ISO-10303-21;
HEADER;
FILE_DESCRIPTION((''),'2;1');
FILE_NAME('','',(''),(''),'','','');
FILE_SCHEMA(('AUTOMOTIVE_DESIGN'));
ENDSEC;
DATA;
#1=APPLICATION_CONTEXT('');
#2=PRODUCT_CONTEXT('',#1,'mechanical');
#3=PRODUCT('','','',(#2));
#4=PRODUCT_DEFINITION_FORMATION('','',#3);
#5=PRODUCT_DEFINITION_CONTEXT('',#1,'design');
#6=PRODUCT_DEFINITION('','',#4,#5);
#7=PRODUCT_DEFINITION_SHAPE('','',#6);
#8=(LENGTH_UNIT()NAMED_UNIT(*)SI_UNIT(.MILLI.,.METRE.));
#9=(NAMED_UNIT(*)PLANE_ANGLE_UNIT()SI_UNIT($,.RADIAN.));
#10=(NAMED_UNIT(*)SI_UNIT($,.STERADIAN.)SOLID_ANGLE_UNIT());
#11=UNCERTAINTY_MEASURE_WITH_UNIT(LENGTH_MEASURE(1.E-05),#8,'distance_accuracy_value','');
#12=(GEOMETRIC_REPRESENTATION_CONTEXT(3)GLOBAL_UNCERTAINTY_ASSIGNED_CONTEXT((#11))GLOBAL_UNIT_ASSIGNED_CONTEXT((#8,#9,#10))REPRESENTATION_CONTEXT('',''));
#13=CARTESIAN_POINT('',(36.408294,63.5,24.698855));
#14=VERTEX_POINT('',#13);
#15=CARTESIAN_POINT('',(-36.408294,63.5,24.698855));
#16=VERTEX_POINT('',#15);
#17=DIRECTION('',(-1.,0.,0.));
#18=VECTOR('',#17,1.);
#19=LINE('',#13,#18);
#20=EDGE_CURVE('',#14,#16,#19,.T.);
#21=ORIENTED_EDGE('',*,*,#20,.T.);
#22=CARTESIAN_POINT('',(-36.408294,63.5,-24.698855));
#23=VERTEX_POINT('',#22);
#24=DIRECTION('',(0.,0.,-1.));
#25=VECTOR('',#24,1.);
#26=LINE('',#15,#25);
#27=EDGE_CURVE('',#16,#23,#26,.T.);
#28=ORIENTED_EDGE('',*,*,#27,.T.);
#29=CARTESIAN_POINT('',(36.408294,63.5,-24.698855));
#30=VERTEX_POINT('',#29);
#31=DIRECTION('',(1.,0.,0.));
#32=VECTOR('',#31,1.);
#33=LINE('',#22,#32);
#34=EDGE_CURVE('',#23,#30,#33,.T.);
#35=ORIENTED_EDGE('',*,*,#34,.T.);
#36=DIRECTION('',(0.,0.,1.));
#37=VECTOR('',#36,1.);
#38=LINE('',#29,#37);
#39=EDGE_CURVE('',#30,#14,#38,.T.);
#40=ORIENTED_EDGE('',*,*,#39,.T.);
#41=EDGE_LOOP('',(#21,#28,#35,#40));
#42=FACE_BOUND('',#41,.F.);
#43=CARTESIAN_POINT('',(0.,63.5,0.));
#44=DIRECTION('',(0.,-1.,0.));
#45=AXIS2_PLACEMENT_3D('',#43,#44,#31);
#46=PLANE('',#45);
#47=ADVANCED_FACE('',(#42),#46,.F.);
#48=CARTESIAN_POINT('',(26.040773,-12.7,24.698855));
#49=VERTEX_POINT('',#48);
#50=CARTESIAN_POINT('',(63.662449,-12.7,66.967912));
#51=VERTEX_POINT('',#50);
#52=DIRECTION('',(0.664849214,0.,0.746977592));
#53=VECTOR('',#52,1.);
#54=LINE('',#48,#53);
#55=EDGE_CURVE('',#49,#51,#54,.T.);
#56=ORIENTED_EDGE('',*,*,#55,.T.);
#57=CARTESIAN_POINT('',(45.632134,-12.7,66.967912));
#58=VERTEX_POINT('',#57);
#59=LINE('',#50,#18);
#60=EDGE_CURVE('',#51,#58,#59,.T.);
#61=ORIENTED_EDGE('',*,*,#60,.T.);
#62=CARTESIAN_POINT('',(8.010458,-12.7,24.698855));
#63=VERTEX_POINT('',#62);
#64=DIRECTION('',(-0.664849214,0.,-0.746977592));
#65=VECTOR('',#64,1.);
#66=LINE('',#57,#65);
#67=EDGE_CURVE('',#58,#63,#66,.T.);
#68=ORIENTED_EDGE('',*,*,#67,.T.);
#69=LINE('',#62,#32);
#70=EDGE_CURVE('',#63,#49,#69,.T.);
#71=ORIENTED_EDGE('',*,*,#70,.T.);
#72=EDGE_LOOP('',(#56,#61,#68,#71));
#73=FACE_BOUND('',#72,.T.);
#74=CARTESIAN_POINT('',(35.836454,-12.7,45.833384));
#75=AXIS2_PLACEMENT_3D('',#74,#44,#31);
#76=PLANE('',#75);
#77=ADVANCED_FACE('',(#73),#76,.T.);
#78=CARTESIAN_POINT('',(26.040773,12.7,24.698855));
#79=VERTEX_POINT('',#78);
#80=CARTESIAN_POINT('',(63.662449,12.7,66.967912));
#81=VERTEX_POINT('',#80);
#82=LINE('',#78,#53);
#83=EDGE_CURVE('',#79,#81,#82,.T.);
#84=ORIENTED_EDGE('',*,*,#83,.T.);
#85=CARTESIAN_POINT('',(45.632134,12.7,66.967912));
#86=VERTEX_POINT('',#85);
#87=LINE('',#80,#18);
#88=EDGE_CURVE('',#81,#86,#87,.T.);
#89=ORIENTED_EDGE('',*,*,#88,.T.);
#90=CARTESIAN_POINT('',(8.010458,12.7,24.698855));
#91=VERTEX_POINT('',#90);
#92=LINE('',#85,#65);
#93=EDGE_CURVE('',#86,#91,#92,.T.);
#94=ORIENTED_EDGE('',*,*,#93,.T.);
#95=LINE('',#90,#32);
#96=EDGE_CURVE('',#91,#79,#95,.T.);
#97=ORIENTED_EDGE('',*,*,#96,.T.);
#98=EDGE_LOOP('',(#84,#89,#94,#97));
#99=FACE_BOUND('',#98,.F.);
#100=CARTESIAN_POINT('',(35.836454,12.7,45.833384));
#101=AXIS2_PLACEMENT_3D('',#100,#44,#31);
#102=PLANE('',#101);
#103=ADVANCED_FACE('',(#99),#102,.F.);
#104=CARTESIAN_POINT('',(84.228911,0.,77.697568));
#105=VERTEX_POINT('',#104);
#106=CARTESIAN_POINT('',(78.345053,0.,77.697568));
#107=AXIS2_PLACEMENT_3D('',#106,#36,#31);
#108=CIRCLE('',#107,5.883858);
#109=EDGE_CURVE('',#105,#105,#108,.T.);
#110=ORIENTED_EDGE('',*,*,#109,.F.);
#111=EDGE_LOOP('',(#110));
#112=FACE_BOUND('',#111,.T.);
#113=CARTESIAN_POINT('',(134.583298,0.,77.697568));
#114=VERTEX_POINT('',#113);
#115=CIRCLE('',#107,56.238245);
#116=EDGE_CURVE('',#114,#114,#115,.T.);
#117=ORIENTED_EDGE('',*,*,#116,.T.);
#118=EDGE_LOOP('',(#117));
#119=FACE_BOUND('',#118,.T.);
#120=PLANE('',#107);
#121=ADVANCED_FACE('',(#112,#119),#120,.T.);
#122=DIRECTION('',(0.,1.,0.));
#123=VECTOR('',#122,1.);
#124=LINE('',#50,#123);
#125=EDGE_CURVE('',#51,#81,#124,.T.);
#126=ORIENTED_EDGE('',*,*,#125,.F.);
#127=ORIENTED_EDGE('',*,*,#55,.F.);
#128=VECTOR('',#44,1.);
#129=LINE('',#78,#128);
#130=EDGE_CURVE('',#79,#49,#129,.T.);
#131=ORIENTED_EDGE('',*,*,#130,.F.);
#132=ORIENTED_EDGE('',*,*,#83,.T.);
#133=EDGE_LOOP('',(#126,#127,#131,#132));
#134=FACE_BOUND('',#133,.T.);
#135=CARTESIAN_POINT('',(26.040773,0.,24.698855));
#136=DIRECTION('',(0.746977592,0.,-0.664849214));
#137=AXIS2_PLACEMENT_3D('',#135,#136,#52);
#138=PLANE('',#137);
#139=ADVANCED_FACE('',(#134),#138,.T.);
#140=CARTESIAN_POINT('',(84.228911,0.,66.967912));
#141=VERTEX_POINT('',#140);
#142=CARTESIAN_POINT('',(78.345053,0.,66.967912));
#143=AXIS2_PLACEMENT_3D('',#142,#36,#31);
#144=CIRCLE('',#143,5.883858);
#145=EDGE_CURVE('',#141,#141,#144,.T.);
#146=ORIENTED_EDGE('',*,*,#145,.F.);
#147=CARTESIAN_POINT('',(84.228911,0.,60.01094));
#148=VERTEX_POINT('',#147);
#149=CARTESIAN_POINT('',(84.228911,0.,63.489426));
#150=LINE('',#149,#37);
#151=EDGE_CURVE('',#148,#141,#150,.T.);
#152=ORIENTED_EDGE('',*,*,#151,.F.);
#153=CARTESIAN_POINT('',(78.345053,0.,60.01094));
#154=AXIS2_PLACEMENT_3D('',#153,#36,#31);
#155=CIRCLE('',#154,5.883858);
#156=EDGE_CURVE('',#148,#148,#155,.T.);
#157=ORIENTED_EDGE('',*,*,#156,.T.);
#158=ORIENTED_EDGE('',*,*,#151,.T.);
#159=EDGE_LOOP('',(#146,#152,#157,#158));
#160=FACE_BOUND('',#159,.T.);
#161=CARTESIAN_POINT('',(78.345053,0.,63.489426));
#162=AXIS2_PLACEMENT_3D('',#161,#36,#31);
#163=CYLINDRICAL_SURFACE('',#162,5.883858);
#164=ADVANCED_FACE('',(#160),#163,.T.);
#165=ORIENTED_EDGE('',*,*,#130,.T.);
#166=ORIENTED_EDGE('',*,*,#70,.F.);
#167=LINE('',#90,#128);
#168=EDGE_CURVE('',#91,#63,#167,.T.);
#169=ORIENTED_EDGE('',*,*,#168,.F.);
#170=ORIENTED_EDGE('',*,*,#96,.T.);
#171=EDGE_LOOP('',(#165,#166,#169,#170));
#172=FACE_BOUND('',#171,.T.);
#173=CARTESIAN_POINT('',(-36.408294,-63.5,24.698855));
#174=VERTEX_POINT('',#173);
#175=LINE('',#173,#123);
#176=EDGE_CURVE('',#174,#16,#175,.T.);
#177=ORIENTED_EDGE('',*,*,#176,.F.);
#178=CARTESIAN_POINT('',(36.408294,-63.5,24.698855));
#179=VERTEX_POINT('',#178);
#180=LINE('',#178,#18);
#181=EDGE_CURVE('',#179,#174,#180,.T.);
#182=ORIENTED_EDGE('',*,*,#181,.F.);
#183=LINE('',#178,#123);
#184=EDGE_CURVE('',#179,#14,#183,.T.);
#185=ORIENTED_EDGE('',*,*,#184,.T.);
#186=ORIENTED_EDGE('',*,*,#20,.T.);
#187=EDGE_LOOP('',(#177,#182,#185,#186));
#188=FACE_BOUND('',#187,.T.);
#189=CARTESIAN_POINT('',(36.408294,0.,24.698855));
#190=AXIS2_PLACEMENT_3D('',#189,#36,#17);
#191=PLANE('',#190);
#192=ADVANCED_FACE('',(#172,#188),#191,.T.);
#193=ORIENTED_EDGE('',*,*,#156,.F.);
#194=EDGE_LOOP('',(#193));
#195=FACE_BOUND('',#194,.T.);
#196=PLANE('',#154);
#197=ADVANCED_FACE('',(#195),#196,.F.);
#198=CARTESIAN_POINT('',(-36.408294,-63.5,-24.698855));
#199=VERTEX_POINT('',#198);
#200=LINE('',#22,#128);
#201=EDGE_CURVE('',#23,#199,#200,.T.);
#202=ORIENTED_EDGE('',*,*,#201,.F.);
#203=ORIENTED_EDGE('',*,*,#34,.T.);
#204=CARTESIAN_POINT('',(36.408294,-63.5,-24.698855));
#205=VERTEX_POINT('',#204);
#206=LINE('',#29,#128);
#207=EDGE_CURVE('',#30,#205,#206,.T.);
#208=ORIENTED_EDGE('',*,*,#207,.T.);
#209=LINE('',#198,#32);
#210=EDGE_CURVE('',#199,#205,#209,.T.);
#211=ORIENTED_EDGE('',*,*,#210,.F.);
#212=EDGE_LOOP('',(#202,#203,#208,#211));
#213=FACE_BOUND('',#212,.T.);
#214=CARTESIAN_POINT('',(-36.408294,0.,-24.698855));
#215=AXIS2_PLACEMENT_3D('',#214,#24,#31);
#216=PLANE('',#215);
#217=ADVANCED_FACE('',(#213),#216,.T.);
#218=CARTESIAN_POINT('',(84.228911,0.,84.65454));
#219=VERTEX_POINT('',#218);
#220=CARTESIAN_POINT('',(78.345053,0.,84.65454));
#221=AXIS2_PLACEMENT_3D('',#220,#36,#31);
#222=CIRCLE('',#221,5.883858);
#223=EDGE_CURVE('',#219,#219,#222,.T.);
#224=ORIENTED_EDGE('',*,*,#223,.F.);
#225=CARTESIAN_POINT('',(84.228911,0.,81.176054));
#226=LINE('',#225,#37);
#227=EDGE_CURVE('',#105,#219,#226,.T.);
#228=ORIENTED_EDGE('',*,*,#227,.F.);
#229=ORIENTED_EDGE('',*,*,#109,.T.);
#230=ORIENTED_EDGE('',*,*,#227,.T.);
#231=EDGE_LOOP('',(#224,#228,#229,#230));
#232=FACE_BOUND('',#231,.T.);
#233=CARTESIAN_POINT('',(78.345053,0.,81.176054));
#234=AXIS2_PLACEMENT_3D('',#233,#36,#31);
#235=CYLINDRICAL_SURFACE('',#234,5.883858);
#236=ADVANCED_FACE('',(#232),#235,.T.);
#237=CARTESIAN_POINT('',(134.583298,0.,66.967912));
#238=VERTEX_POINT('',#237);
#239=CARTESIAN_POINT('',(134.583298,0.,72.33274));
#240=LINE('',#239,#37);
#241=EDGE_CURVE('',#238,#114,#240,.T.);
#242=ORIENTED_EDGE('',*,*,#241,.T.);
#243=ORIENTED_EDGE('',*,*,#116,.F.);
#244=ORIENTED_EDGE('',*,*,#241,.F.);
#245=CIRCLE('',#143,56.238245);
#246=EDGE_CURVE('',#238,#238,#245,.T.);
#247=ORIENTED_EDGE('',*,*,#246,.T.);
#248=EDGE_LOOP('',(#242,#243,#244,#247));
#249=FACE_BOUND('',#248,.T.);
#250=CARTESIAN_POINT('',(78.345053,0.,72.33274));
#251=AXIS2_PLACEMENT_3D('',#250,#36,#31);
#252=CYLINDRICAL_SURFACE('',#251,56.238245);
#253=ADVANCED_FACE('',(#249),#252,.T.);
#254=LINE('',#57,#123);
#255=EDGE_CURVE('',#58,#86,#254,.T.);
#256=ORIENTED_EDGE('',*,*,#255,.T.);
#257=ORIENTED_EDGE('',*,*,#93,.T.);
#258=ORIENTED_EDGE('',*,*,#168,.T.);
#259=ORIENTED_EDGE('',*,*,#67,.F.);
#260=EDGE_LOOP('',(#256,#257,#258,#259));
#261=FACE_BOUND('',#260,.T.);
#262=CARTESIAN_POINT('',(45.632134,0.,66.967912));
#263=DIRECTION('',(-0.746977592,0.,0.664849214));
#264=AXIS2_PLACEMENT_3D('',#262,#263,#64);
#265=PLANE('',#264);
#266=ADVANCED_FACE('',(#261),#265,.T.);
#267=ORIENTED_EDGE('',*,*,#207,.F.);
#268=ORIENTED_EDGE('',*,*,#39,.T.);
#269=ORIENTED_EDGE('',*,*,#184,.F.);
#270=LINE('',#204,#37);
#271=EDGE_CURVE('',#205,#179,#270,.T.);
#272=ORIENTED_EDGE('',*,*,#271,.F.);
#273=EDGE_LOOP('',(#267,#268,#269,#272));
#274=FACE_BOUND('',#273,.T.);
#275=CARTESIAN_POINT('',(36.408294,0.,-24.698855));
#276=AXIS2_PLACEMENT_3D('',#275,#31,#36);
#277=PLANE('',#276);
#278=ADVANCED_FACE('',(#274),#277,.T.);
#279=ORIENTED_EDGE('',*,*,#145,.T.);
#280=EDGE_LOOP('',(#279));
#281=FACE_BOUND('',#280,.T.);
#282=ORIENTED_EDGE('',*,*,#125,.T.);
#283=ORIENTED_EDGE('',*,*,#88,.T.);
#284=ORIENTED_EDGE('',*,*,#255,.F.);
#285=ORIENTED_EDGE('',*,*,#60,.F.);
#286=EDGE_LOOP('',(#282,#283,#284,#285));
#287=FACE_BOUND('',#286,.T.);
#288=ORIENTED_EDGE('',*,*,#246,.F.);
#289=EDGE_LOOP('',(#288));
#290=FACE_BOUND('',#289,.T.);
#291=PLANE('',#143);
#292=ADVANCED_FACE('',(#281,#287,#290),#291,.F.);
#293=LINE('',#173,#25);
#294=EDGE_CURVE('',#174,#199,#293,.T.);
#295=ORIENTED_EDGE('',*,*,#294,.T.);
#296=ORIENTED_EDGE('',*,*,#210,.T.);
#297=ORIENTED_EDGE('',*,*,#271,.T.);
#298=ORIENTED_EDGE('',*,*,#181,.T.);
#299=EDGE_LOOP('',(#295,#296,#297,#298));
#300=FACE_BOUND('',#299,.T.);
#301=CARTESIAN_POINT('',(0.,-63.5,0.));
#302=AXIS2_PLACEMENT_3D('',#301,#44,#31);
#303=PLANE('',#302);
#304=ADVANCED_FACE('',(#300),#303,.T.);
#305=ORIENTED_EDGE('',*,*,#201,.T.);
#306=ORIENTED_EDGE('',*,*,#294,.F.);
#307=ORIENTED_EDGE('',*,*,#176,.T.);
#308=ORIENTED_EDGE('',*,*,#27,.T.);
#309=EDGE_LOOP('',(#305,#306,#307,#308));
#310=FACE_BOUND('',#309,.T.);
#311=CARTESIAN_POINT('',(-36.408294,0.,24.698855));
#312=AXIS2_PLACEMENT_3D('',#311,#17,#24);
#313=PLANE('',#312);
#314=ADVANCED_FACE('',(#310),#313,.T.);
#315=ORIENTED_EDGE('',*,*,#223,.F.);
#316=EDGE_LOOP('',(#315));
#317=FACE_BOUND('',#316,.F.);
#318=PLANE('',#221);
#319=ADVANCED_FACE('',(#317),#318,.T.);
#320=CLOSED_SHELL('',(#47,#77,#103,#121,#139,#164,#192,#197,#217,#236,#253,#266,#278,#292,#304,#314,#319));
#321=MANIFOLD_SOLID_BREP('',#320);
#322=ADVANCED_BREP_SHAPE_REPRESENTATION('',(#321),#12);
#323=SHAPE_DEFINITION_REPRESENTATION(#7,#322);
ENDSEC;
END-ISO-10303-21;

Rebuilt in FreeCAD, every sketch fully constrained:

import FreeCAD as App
import Part
import Sketcher
from FreeCAD import Vector
Q = App.Units.Quantity

doc = App.newDocument("Part")
body = doc.addObject("PartDesign::Body", "Body")

# Sketch on XZ plane
sketch1 = doc.addObject("Sketcher::SketchObject", "Sketch")
body.addObject(sketch1)
sketch1.AttachmentSupport = (doc.XZ_Plane, [""])
sketch1.MapMode = "FlatFace"
sketch1.addGeometry([
    Part.LineSegment(Vector(-36, 25, 0), Vector(-36, -25, 0)),
    Part.LineSegment(Vector(-36, -25, 0), Vector(36, -25, 0)),
    Part.LineSegment(Vector(36, -25, 0), Vector(36, 25, 0)),
    Part.LineSegment(Vector(36, 25, 0), Vector(-36, 25, 0)),
], False)
sketch1.addConstraint([
    Sketcher.Constraint("Coincident", 0, 2, 1, 1),
    Sketcher.Constraint("Coincident", 1, 2, 2, 1),
    Sketcher.Constraint("Coincident", 2, 2, 3, 1),
    Sketcher.Constraint("Coincident", 3, 2, 0, 1),
    Sketcher.Constraint("Vertical", 0),
    Sketcher.Constraint("Horizontal", 1),
    Sketcher.Constraint("Vertical", 2),
    Sketcher.Constraint("Horizontal", 3),
    Sketcher.Constraint("Symmetric", 0, 2, 2, 2, -1, 1),
    Sketcher.Constraint("DistanceY", 0, 2, 0, 1, Q("49.397711 mm")),
    Sketcher.Constraint("DistanceX", 1, 1, 1, 2, Q("72.816588 mm")),
])
pad1 = doc.addObject("PartDesign::Pad", "Pad")
body.addObject(pad1)
pad1.Profile = sketch1
pad1.Length = Q("5 in")
pad1.Midplane = True

# Sketch on XZ plane
sketch2 = doc.addObject("Sketcher::SketchObject", "Sketch001")
body.addObject(sketch2)
sketch2.AttachmentSupport = (doc.XZ_Plane, [""])
sketch2.MapMode = "FlatFace"
sketch2.addGeometry([
    Part.LineSegment(Vector(46, 67, 0), Vector(8, 25, 0)),
    Part.LineSegment(Vector(8, 25, 0), Vector(26, 25, 0)),
    Part.LineSegment(Vector(26, 25, 0), Vector(64, 67, 0)),
    Part.LineSegment(Vector(64, 67, 0), Vector(46, 67, 0)),
], False)
sketch2.addConstraint([
    Sketcher.Constraint("Coincident", 0, 2, 1, 1),
    Sketcher.Constraint("Coincident", 1, 2, 2, 1),
    Sketcher.Constraint("Coincident", 2, 2, 3, 1),
    Sketcher.Constraint("Coincident", 3, 2, 0, 1),
    Sketcher.Constraint("Horizontal", 1),
    Sketcher.Constraint("Horizontal", 3),
    Sketcher.Constraint("Parallel", 0, 2),
    Sketcher.Constraint("Distance", 0, Q("56.58678 mm")),
    Sketcher.Constraint("DistanceX", 1, 1, 1, 2, Q("18.030315 mm")),
    Sketcher.Constraint("DistanceX", -1, 1, 0, 2, Q("8.010458 mm")),
    Sketcher.Constraint("DistanceX", -1, 1, 2, 2, Q("63.662449 mm")),
    Sketcher.Constraint("DistanceY", -1, 1, 0, 2, Q("24.698855 mm")),
])
pad2 = doc.addObject("PartDesign::Pad", "Pad001")
body.addObject(pad2)
pad2.Profile = sketch2
pad2.Length = Q("1 in")
pad2.Midplane = True

# Sketch on XZ plane
sketch3 = doc.addObject("Sketcher::SketchObject", "Sketch002")
body.addObject(sketch3)
sketch3.AttachmentSupport = (doc.XZ_Plane, [""])
sketch3.MapMode = "FlatFace"
sketch3.addGeometry([
    Part.LineSegment(Vector(135, 67, 0), Vector(135, 78, 0)),  # 0
    Part.LineSegment(Vector(135, 78, 0), Vector(84, 78, 0)),  # 1
    Part.LineSegment(Vector(84, 78, 0), Vector(84, 85, 0)),  # 2
    Part.LineSegment(Vector(84, 85, 0), Vector(78, 85, 0)),  # 3
    Part.LineSegment(Vector(78, 85, 0), Vector(78, 78, 0)),  # 4
    Part.LineSegment(Vector(78, 78, 0), Vector(78, 67, 0)),  # 5
    Part.LineSegment(Vector(78, 67, 0), Vector(78, 60, 0)),  # 6
    Part.LineSegment(Vector(78, 60, 0), Vector(84, 60, 0)),  # 7
    Part.LineSegment(Vector(84, 60, 0), Vector(84, 67, 0)),  # 8
    Part.LineSegment(Vector(84, 67, 0), Vector(135, 67, 0)),  # 9
], False)
sketch3.addGeometry(Part.LineSegment(Vector(78, 60, 0), Vector(78, 85, 0)), True)  # axis
sketch3.addConstraint([
    Sketcher.Constraint("Coincident", 0, 2, 1, 1),
    Sketcher.Constraint("Coincident", 1, 2, 2, 1),
    Sketcher.Constraint("Coincident", 2, 2, 3, 1),
    Sketcher.Constraint("Coincident", 3, 2, 4, 1),
    Sketcher.Constraint("Coincident", 4, 2, 5, 1),
    Sketcher.Constraint("Coincident", 5, 2, 6, 1),
    Sketcher.Constraint("Coincident", 6, 2, 7, 1),
    Sketcher.Constraint("Coincident", 7, 2, 8, 1),
    Sketcher.Constraint("Coincident", 8, 2, 9, 1),
    Sketcher.Constraint("Coincident", 9, 2, 0, 1),
    Sketcher.Constraint("Vertical", 0),
    Sketcher.Constraint("Horizontal", 1),
    Sketcher.Constraint("Vertical", 2),
    Sketcher.Constraint("Horizontal", 3),
    Sketcher.Constraint("Vertical", 4),
    Sketcher.Constraint("Vertical", 5),
    Sketcher.Constraint("Vertical", 6),
    Sketcher.Constraint("Horizontal", 7),
    Sketcher.Constraint("Vertical", 8),
    Sketcher.Constraint("Horizontal", 9),
    Sketcher.Constraint("Vertical", 10),
    Sketcher.Constraint("Coincident", 10, 1, 6, 2),
    Sketcher.Constraint("Horizontal", 1, 2, 4, 2),
    Sketcher.Constraint("Horizontal", 5, 2, 8, 2),
    Sketcher.Constraint("Horizontal", 2, 2, 10, 2),
    Sketcher.Constraint("Vertical", 2, 2, 7, 2),
    Sketcher.Constraint("Equal", 4, 6),
    Sketcher.Constraint("DistanceY", 10, 1, 10, 2, Q("24.6436 mm")),
    Sketcher.Constraint("DistanceX", -1, 1, 0, 2, Q("134.583298 mm")),
    Sketcher.Constraint("DistanceX", 1, 2, 1, 1, Q("50.354388 mm")),
    Sketcher.Constraint("DistanceX", 3, 2, 3, 1, Q("5.883858 mm")),
    Sketcher.Constraint("DistanceY", 0, 1, 0, 2, Q("10.729656 mm")),
    Sketcher.Constraint("DistanceY", -1, 1, 2, 2, Q("84.65454 mm")),
])
revolution = doc.addObject("PartDesign::Revolution", "Revolution")
body.addObject(revolution)
revolution.Profile = sketch3
revolution.ReferenceAxis = (sketch3, ["Axis0"])
revolution.Angle = 360

doc.recompute()
